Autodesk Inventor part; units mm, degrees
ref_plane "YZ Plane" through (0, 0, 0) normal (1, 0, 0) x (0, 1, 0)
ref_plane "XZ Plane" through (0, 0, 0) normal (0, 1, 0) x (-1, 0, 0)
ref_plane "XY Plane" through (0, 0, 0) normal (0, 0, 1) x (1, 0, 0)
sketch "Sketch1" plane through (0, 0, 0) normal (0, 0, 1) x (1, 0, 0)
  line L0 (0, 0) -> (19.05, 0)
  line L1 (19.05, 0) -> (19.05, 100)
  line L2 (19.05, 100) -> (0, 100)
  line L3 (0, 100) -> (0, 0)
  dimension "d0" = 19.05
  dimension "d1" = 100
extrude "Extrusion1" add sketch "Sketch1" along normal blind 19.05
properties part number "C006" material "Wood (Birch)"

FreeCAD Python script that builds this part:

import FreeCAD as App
import Part
import Sketcher
from FreeCAD import Vector
Q = App.Units.Quantity

doc = App.newDocument("Part")
body = doc.addObject("PartDesign::Body", "Body")

# Sketch on XY plane
sketch1 = body.newObject("Sketcher::SketchObject", "Sketch")
sketch1.AttachmentSupport = (doc.getObject("XY_Plane"), [""])
sketch1.MapMode = "FlatFace"
sketch1.addGeometry([
    Part.LineSegment(Vector(0, 100, 0), Vector(0, 0, 0)),
    Part.LineSegment(Vector(0, 0, 0), Vector(19, 0, 0)),
    Part.LineSegment(Vector(19, 0, 0), Vector(19, 100, 0)),
    Part.LineSegment(Vector(19, 100, 0), Vector(0, 100, 0)),
], False)
sketch1.addConstraint([
    Sketcher.Constraint("Coincident", 0, 2, 1, 1),
    Sketcher.Constraint("Coincident", 1, 2, 2, 1),
    Sketcher.Constraint("Coincident", 2, 2, 3, 1),
    Sketcher.Constraint("Coincident", 3, 2, 0, 1),
    Sketcher.Constraint("Vertical", 0),
    Sketcher.Constraint("Horizontal", 1),
    Sketcher.Constraint("Vertical", 2),
    Sketcher.Constraint("Horizontal", 3),
    Sketcher.Constraint("Coincident", 0, 2, -1, 1),
    Sketcher.Constraint("DistanceX", 1, 1, 1, 2, Q("0.75 in")),
    Sketcher.Constraint("DistanceY", 0, 2, 0, 1, Q("3.937 in")),
])
pad1 = body.newObject("PartDesign::Pad", "Pad")
pad1.Profile = sketch1
pad1.Length = Q("0.75 in")

doc.recompute()
